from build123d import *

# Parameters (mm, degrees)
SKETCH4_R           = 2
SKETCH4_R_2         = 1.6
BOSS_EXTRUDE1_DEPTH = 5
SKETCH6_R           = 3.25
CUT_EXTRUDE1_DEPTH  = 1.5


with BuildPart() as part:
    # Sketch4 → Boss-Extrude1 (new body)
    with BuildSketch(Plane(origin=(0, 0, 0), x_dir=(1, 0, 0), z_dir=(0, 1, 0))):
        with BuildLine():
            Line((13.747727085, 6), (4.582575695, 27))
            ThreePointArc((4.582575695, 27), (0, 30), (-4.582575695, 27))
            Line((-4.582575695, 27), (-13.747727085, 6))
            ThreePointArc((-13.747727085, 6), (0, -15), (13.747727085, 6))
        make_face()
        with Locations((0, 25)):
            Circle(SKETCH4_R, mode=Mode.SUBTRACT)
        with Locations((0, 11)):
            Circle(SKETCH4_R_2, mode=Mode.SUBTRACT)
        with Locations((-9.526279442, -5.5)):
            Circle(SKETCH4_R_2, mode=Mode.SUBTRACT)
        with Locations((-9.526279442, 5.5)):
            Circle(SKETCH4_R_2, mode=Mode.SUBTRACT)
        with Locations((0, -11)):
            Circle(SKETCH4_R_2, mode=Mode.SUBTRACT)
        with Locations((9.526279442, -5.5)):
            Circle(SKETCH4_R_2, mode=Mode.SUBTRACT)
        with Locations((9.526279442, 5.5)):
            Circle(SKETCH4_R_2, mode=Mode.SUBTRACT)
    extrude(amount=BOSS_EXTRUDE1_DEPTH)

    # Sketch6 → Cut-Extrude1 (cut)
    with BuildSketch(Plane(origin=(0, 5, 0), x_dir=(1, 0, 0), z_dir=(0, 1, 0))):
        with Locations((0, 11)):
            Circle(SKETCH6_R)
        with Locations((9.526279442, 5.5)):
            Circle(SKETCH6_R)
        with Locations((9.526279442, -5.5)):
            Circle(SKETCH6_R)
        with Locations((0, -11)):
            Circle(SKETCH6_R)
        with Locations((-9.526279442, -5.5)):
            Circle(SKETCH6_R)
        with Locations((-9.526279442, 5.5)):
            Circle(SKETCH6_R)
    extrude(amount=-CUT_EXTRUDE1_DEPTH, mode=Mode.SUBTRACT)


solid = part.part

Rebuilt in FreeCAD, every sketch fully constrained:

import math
import FreeCAD as App
import Part
import Sketcher
from FreeCAD import Vector

doc = App.newDocument("Part")
body = doc.addObject("PartDesign::Body", "Body")

# Sketch on XZ plane
sketch1 = doc.addObject("Sketcher::SketchObject", "Sketch")
body.addObject(sketch1)
sketch1.AttachmentSupport = (doc.XZ_Plane, [""])
sketch1.MapMode = "FlatFace"
sketch1.addGeometry(Part.LineSegment(Vector(13.747727, -6, 0), Vector(4.582576, -27, 0)), False)
sketch1.addGeometry(Part.ArcOfCircle(Part.Circle(Vector(0, -25, 0), Vector(0, 0, 1), 5), math.radians(-156.421822), math.radians(-23.578178)), False)
sketch1.addGeometry(Part.LineSegment(Vector(-4.582576, -27, 0), Vector(-13.747727, -6, 0)), False)
sketch1.addGeometry(Part.ArcOfCircle(Part.Circle(Vector(0, 0, 0), Vector(0, 0, 1), 15), math.radians(-23.578178), math.radians(203.578178)), False)
sketch1.addGeometry(Part.Circle(Vector(-9.526279, 5.5, 0), Vector(0, 0, 1), 1.6), False)
sketch1.addGeometry(Part.Circle(Vector(-9.526279, -5.5, 0), Vector(0, 0, 1), 1.6), False)
sketch1.addGeometry(Part.Circle(Vector(0, 11, 0), Vector(0, 0, 1), 1.6), False)
sketch1.addGeometry(Part.Circle(Vector(9.526279, 5.5, 0), Vector(0, 0, 1), 1.6), False)
sketch1.addGeometry(Part.Circle(Vector(9.526279, -5.5, 0), Vector(0, 0, 1), 1.6), False)
sketch1.addGeometry(Part.Circle(Vector(0, -11, 0), Vector(0, 0, 1), 1.6), False)
sketch1.addGeometry(Part.Circle(Vector(0, -25, 0), Vector(0, 0, 1), 2), False)
sketch1.addConstraint(Sketcher.Constraint("Tangent", 0, 2, 1, 2))
sketch1.addConstraint(Sketcher.Constraint("Tangent", 1, 1, 2, 1))
sketch1.addConstraint(Sketcher.Constraint("Tangent", 2, 2, 3, 2))
sketch1.addConstraint(Sketcher.Constraint("Tangent", 3, 1, 0, 1))
sketch1.addConstraint(Sketcher.Constraint("Coincident", 3, 3, -1, 1))
sketch1.addConstraint(Sketcher.Constraint("Coincident", 10, 3, 1, 3))
sketch1.addConstraint(Sketcher.Constraint("Equal", 4, 5))
sketch1.addConstraint(Sketcher.Constraint("Equal", 5, 6))
sketch1.addConstraint(Sketcher.Constraint("Equal", 6, 7))
sketch1.addConstraint(Sketcher.Constraint("Equal", 7, 8))
sketch1.addConstraint(Sketcher.Constraint("Equal", 8, 9))
sketch1.addConstraint(Sketcher.Constraint("Symmetric", 5, 3, 7, 3, -1, 1))
sketch1.addConstraint(Sketcher.Constraint("Symmetric", 4, 3, 8, 3, -1, 1))
sketch1.addConstraint(Sketcher.Constraint("Symmetric", 6, 3, 9, 3, -1, 1))
sketch1.addConstraint(Sketcher.Constraint("Symmetric", 4, 3, 7, 3, -2))
sketch1.addConstraint(Sketcher.Constraint("PointOnObject", 1, 3, -2))
sketch1.addConstraint(Sketcher.Constraint("PointOnObject", 6, 3, -2))
sketch1.addConstraint(Sketcher.Constraint("Diameter", 10, 4.0))
sketch1.addConstraint(Sketcher.Constraint("Radius", 1, 5.0))
sketch1.addConstraint(Sketcher.Constraint("Radius", 3, 15.0))
sketch1.addConstraint(Sketcher.Constraint("Diameter", 4, 3.2))
sketch1.addConstraint(Sketcher.Constraint("DistanceY", 1, 3, -1, 1, 25.0))
sketch1.addConstraint(Sketcher.Constraint("DistanceY", -1, 1, 6, 3, 11.0))
sketch1.addConstraint(Sketcher.Constraint("DistanceY", 5, 3, 4, 3, 11.0))
sketch1.addConstraint(Sketcher.Constraint("DistanceX", 4, 3, -1, 1, 9.526279))
pad1 = doc.addObject("PartDesign::Pad", "Pad")
body.addObject(pad1)
pad1.Profile = sketch1
pad1.Length = 5
pad1.Reversed = True

# Sketch on XZ plane
sketch2 = doc.addObject("Sketcher::SketchObject", "Sketch001")
body.addObject(sketch2)
sketch2.AttachmentSupport = (doc.XZ_Plane, [""])
sketch2.MapMode = "FlatFace"
sketch2.AttachmentOffset = App.Placement(Vector(0, 0, -5), App.Rotation())
sketch2.addGeometry(Part.Circle(Vector(0, -11, 0), Vector(0, 0, 1), 3.25), False)
sketch2.addGeometry(Part.Circle(Vector(9.526279, -5.5, 0), Vector(0, 0, 1), 3.25), False)
sketch2.addGeometry(Part.Circle(Vector(9.526279, 5.5, 0), Vector(0, 0, 1), 3.25), False)
sketch2.addGeometry(Part.Circle(Vector(0, 11, 0), Vector(0, 0, 1), 3.25), False)
sketch2.addGeometry(Part.Circle(Vector(-9.526279, 5.5, 0), Vector(0, 0, 1), 3.25), False)
sketch2.addGeometry(Part.Circle(Vector(-9.526279, -5.5, 0), Vector(0, 0, 1), 3.25), False)
sketch2.addConstraint(Sketcher.Constraint("Equal", 0, 1))
sketch2.addConstraint(Sketcher.Constraint("Equal", 1, 2))
sketch2.addConstraint(Sketcher.Constraint("Equal", 2, 3))
sketch2.addConstraint(Sketcher.Constraint("Equal", 3, 4))
sketch2.addConstraint(Sketcher.Constraint("Equal", 4, 5))
sketch2.addConstraint(Sketcher.Constraint("Symmetric", 0, 3, 3, 3, -1, 1))
sketch2.addConstraint(Sketcher.Constraint("Symmetric", 1, 3, 4, 3, -1, 1))
sketch2.addConstraint(Sketcher.Constraint("Symmetric", 2, 3, 5, 3, -1, 1))
sketch2.addConstraint(Sketcher.Constraint("Symmetric", 2, 3, 4, 3, -2))
sketch2.addConstraint(Sketcher.Constraint("PointOnObject", 0, 3, -2))
sketch2.addConstraint(Sketcher.Constraint("Diameter", 0, 6.5))
sketch2.addConstraint(Sketcher.Constraint("DistanceY", 0, 3, -1, 1, 11.0))
sketch2.addConstraint(Sketcher.Constraint("DistanceY", 1, 3, 2, 3, 11.0))
sketch2.addConstraint(Sketcher.Constraint("DistanceX", -1, 1, 1, 3, 9.526279))
pocket1 = doc.addObject("PartDesign::Pocket", "Pocket")
body.addObject(pocket1)
pocket1.Profile = sketch2
pocket1.Length = 1.5
pocket1.Reversed = True

doc.recompute()
